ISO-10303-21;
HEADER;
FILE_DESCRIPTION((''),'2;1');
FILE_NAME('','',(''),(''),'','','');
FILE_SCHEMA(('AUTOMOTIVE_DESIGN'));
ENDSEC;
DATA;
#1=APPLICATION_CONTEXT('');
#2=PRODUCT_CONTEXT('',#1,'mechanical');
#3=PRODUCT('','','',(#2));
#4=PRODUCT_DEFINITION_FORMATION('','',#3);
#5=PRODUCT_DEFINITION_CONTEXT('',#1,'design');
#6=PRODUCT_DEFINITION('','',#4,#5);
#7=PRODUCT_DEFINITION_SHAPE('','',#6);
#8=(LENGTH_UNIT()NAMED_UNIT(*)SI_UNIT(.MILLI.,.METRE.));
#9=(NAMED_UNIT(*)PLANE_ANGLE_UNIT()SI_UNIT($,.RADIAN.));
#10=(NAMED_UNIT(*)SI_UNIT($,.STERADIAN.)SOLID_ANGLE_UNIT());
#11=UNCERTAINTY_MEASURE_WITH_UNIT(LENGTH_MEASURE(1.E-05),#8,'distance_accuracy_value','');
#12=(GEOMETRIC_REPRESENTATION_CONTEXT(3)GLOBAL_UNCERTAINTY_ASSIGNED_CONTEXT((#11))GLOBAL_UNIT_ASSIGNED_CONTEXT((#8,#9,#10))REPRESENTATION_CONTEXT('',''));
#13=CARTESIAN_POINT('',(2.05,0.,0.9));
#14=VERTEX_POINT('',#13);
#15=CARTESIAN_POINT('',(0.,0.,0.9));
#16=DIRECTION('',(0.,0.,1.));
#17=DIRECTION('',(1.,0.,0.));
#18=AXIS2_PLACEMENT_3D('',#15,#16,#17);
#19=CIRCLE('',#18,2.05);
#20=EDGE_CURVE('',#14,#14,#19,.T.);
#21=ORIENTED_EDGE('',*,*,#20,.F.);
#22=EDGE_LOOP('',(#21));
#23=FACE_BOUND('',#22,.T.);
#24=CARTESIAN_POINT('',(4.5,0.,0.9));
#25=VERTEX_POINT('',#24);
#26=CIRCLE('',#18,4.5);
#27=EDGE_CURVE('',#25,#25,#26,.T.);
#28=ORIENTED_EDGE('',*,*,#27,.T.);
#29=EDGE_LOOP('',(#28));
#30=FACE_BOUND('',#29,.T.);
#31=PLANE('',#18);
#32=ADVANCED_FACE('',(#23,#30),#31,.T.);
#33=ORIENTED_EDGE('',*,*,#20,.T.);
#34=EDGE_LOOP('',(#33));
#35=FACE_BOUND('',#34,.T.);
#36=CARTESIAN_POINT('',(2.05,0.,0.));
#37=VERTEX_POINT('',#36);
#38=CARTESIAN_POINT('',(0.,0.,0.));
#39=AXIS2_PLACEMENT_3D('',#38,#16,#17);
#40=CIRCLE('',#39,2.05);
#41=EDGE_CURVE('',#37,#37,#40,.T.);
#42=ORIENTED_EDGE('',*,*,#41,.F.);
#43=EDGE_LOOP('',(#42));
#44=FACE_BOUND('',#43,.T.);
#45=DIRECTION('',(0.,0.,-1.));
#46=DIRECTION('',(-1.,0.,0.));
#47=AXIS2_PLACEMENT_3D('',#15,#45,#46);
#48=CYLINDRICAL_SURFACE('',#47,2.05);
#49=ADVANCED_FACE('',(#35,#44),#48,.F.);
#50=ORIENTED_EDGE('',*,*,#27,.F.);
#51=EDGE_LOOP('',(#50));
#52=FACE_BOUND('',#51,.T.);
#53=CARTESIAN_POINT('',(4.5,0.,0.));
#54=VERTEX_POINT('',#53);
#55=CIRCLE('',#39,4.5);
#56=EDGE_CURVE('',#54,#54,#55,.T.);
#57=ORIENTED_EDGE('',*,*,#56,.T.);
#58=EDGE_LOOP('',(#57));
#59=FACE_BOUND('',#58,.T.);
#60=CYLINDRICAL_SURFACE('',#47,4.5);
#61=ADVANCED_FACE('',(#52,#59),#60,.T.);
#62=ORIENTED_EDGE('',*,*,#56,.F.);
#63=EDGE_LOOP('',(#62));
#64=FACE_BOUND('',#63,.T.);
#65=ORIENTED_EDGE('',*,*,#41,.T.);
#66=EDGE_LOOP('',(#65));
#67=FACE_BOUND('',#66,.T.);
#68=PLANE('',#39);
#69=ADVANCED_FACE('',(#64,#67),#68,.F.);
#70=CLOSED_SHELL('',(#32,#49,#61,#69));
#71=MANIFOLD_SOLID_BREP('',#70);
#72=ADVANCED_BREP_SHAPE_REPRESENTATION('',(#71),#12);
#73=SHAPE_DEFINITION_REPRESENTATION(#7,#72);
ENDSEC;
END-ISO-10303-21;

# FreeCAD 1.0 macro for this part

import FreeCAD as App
import Part
import Sketcher
Q = App.Units.Quantity

doc = App.newDocument("Part")
body = doc.addObject("PartDesign::Body", "Body")

# Sketch on XY plane
sketch1 = body.newObject("Sketcher::SketchObject", "Sketch")
sketch1.AttachmentSupport = (doc.getObject("XY_Plane"), [""])
sketch1.MapMode = "FlatFace"
sketch1.addGeometry(Part.Circle(App.Vector(0, 0, 0), App.Vector(0, 0, 1), 4.5), False)
sketch1.addGeometry(Part.Circle(App.Vector(0, 0, 0), App.Vector(0, 0, 1), 2), False)
sketch1.addConstraint(Sketcher.Constraint("Coincident", 0, 3, -1, 1))
sketch1.addConstraint(Sketcher.Constraint("Coincident", 1, 3, -1, 1))
sketch1.addConstraint(Sketcher.Constraint("Diameter", 0, Q("9 mm")))
sketch1.addConstraint(Sketcher.Constraint("Diameter", 1, Q("4.1 mm")))
pad1 = body.newObject("PartDesign::Pad", "Pad")
pad1.Profile = sketch1
pad1.Length = 0.9

doc.recompute()
